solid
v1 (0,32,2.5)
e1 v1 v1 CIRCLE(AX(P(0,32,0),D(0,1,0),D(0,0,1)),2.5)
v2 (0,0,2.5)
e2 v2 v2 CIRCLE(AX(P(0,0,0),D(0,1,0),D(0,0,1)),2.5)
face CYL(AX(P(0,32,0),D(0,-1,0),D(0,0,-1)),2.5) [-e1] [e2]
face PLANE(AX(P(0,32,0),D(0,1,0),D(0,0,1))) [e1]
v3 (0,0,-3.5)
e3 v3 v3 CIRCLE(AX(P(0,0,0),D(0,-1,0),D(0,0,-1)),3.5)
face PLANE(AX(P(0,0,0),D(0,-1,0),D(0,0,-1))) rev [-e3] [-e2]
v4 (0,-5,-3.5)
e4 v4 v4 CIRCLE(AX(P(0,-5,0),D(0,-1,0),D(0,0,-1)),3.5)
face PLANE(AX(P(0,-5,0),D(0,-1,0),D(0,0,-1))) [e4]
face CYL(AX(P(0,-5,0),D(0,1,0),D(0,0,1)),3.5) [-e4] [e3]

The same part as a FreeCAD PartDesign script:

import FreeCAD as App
import Part
import Sketcher

V = App.Vector

doc = App.newDocument("Part")
body = doc.addObject("PartDesign::Body", "Body")

# Sketch on XZ plane
sketch1 = body.newObject("Sketcher::SketchObject", "Sketch")
sketch1.AttachmentSupport = (doc.getObject("XZ_Plane"), [""])
sketch1.MapMode = "FlatFace"
sketch1.addGeometry(Part.Circle(V(0, 0, 0), V(0, 0, 1), 2.5), False)
sketch1.addConstraint(Sketcher.Constraint("Coincident", 0, 3, -1, 1))
sketch1.addConstraint(Sketcher.Constraint("Diameter", 0, 5.0))
pad1 = body.newObject("PartDesign::Pad", "Pad")
pad1.Profile = sketch1
pad1.Length = 32
pad1.Reversed = True

# Sketch on XZ plane
sketch2 = body.newObject("Sketcher::SketchObject", "Sketch001")
sketch2.AttachmentSupport = (doc.getObject("XZ_Plane"), [""])
sketch2.MapMode = "FlatFace"
sketch2.addGeometry(Part.Circle(V(0, 0, 0), V(0, 0, 1), 3.5), False)
sketch2.addConstraint(Sketcher.Constraint("Coincident", 0, 3, -1, 1))
sketch2.addConstraint(Sketcher.Constraint("Diameter", 0, 7.0))
pad2 = body.newObject("PartDesign::Pad", "Pad001")
pad2.Profile = sketch2
pad2.Length = 5

doc.recompute()
